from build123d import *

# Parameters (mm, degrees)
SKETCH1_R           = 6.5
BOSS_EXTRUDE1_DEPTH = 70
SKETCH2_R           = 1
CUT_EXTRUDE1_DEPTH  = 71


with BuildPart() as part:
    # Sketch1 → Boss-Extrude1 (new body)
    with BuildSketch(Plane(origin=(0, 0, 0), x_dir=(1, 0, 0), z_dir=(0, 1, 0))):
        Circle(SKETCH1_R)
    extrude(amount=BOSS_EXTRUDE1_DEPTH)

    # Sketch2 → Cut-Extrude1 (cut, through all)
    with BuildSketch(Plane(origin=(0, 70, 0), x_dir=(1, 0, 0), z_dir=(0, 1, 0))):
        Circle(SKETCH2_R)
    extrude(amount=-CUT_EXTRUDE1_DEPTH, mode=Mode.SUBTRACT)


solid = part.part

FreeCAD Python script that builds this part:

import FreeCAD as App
import Part
import Sketcher

V = App.Vector
Q = App.Units.Quantity

doc = App.newDocument("Part")
body = doc.addObject("PartDesign::Body", "Body")

sketch1 = body.newObject("Sketcher::SketchObject", "Sketch")
sketch1.AttachmentSupport = (doc.getObject("XZ_Plane"), [""])
sketch1.MapMode = "FlatFace"
sketch1.addGeometry(Part.Circle(V(0, 0, 0), V(0, 0, 1), 6), False)
sketch1.addConstraint(Sketcher.Constraint("Coincident", 0, 3, -1, 1))
sketch1.addConstraint(Sketcher.Constraint("Diameter", 0, Q("13 mm")))
pad1 = body.newObject("PartDesign::Pad", "Pad")
pad1.Profile = sketch1
pad1.Length = 70
pad1.Reversed = True

sketch2 = body.newObject("Sketcher::SketchObject", "Sketch001")
sketch2.AttachmentSupport = (doc.getObject("XZ_Plane"), [""])
sketch2.MapMode = "FlatFace"
sketch2.AttachmentOffset = App.Placement(V(0, 0, -70), App.Rotation())
sketch2.addGeometry(Part.Circle(V(0, 0, 0), V(0, 0, 1), 1), False)
sketch2.addConstraint(Sketcher.Constraint("Coincident", 0, 3, -1, 1))
sketch2.addConstraint(Sketcher.Constraint("Diameter", 0, Q("2 mm")))
pocket1 = body.newObject("PartDesign::Pocket", "Pocket")
pocket1.Profile = sketch2
pocket1.Type = "ThroughAll"
pocket1.Reversed = True

doc.recompute()
